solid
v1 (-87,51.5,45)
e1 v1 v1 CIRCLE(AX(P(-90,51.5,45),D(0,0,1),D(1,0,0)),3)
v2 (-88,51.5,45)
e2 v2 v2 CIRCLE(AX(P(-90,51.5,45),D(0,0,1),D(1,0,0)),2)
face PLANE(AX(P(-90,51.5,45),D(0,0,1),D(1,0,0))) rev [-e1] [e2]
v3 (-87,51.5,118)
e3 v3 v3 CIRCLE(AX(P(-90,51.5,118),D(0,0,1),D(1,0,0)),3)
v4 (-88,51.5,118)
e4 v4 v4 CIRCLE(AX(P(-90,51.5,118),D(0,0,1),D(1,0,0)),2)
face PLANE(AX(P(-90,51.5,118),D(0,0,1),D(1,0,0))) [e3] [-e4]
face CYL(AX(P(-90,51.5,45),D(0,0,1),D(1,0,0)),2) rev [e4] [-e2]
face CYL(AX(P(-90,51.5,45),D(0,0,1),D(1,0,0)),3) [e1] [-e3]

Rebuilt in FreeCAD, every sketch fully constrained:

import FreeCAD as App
import Part
import Sketcher

doc = App.newDocument("Part")
body = doc.addObject("PartDesign::Body", "Body")

sketch1 = body.newObject("Sketcher::SketchObject", "Sketch")
sketch1.AttachmentSupport = (doc.getObject("XY_Plane"), [""])
sketch1.MapMode = "FlatFace"
sketch1.AttachmentOffset = App.Placement(App.Vector(0, 0, 118), App.Rotation())
sketch1.addGeometry(Part.Circle(App.Vector(-90, 51.5, 0), App.Vector(0, 0, 1), 3), False)
sketch1.addGeometry(Part.Circle(App.Vector(-90, 51.5, 0), App.Vector(0, 0, 1), 2), False)
sketch1.addConstraint(Sketcher.Constraint("Coincident", 1, 3, 0, 3))
sketch1.addConstraint(Sketcher.Constraint("Diameter", 0, 6.0))
sketch1.addConstraint(Sketcher.Constraint("Diameter", 1, 4.0))
sketch1.addConstraint(Sketcher.Constraint("DistanceX", 0, 3, -1, 1, 90.0))
sketch1.addConstraint(Sketcher.Constraint("DistanceY", -1, 1, 0, 3, 51.5))
pad1 = body.newObject("PartDesign::Pad", "Pad")
pad1.Profile = sketch1
pad1.Length = 73
pad1.Reversed = True

doc.recompute()
